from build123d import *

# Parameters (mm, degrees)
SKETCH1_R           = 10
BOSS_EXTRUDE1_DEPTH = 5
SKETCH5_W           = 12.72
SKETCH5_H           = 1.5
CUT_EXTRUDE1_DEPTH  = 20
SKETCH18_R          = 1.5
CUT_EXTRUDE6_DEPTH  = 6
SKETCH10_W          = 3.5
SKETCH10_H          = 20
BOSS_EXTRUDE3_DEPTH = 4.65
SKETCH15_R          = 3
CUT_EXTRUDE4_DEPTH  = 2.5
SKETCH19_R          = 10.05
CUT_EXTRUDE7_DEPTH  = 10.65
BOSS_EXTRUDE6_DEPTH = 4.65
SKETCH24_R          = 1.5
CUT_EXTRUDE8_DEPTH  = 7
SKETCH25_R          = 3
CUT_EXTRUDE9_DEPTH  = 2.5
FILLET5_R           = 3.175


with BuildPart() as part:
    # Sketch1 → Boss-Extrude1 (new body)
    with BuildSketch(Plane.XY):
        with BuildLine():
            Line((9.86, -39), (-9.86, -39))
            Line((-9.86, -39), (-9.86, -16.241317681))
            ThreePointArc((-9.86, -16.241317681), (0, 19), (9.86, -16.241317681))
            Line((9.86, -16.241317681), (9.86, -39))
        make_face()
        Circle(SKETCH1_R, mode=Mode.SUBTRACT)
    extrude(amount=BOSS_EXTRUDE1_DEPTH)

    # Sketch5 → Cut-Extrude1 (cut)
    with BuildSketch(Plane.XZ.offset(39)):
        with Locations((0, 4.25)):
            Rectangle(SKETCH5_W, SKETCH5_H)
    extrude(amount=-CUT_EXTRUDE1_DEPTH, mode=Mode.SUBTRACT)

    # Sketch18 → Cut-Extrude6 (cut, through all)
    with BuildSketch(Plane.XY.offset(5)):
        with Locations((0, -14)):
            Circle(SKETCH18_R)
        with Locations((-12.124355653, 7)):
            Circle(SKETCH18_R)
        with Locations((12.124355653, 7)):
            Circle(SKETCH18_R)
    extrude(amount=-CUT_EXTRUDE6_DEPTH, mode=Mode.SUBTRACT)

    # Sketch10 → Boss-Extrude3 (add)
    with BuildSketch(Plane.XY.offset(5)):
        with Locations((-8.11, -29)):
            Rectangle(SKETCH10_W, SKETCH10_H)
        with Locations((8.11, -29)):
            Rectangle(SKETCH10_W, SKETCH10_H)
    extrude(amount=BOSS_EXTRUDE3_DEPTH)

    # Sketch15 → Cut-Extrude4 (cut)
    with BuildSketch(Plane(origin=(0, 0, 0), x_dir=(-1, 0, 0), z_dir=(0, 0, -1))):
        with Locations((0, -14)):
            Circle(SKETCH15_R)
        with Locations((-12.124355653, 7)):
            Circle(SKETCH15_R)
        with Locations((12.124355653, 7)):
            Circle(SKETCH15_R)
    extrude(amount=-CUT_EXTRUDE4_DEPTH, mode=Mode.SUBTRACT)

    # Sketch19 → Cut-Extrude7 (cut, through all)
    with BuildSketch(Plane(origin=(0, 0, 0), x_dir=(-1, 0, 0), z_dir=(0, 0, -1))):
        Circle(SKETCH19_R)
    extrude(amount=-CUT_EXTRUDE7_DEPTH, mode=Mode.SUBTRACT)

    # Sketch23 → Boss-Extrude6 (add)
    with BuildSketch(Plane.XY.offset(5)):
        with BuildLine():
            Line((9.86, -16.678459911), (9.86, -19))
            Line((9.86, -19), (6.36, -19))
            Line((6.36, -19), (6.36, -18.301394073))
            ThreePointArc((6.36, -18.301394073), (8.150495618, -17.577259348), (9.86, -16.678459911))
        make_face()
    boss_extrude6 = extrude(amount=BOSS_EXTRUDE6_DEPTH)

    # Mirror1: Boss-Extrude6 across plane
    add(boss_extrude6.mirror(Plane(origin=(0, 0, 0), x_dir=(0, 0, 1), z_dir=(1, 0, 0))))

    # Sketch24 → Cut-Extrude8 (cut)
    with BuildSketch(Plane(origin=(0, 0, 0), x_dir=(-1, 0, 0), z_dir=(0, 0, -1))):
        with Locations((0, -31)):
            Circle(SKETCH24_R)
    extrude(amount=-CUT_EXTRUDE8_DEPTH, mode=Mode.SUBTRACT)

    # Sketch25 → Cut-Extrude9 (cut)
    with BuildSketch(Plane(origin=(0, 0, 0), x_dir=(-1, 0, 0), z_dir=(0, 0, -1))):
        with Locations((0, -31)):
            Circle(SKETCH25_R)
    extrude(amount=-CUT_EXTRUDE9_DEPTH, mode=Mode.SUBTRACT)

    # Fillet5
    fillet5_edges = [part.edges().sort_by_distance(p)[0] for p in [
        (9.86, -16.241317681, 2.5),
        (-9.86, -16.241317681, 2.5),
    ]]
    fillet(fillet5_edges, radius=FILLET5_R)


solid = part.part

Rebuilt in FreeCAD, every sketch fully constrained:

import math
import FreeCAD as App
import Part
import Sketcher

V = App.Vector


def edges_at(feature, points):
    """Names of the edges that pass closest to the given points."""
    edges = feature.Shape.Edges
    near = lambda p: min(range(len(edges)), key=lambda i: edges[i].distToShape(Part.Vertex(*p))[0])
    return sorted({f"Edge{near(p) + 1}" for p in points})

doc = App.newDocument("Part")
body = doc.addObject("PartDesign::Body", "Body")

sketch1 = body.newObject("Sketcher::SketchObject", "Sketch")
sketch1.AttachmentSupport = (doc.getObject("XY_Plane"), [""])
sketch1.MapMode = "FlatFace"
sketch1.addGeometry([
    Part.LineSegment(V(-9.86, -39, 0), V(9.86, -39, 0)),
    Part.LineSegment(V(9.86, -39, 0), V(9.86, -16.241318, 0)),
    Part.ArcOfCircle(Part.Circle(V(0, 0, 0), V(0, 0, 1), 19), math.radians(-58.73833), math.radians(238.73833)),
    Part.LineSegment(V(-9.86, -16.241318, 0), V(-9.86, -39, 0)),
    Part.Circle(V(0, 0, 0), V(0, 0, 1), 10),
], False)
sketch1.addConstraint([
    Sketcher.Constraint("Coincident", 0, 2, 1, 1),
    Sketcher.Constraint("Coincident", 1, 2, 2, 1),
    Sketcher.Constraint("Coincident", 2, 2, 3, 1),
    Sketcher.Constraint("Coincident", 3, 2, 0, 1),
    Sketcher.Constraint("Horizontal", 0),
    Sketcher.Constraint("Vertical", 1),
    Sketcher.Constraint("Vertical", 3),
    Sketcher.Constraint("Coincident", 2, 3, -1, 1),
    Sketcher.Constraint("Coincident", 4, 3, -1, 1),
    Sketcher.Constraint("Horizontal", 1, 2, 2, 2),
    Sketcher.Constraint("Diameter", 4, 20.0),
    Sketcher.Constraint("Radius", 2, 19.0),
    Sketcher.Constraint("DistanceY", 0, 2, -1, 1, 39.0),
    Sketcher.Constraint("DistanceX", 0, 1, 0, 2, 19.72),
])
pad1 = body.newObject("PartDesign::Pad", "Pad")
pad1.Profile = sketch1
pad1.Length = 5

sketch2 = body.newObject("Sketcher::SketchObject", "Sketch001")
sketch2.AttachmentSupport = (doc.getObject("XZ_Plane"), [""])
sketch2.MapMode = "FlatFace"
sketch2.AttachmentOffset = App.Placement(V(0, 0, 39), App.Rotation())
sketch2.addGeometry([
    Part.LineSegment(V(-6.36, 5, 0), V(-6.36, 3.5, 0)),
    Part.LineSegment(V(-6.36, 3.5, 0), V(6.36, 3.5, 0)),
    Part.LineSegment(V(6.36, 3.5, 0), V(6.36, 5, 0)),
    Part.LineSegment(V(6.36, 5, 0), V(-6.36, 5, 0)),
], False)
sketch2.addConstraint([
    Sketcher.Constraint("Coincident", 0, 2, 1, 1),
    Sketcher.Constraint("Coincident", 1, 2, 2, 1),
    Sketcher.Constraint("Coincident", 2, 2, 3, 1),
    Sketcher.Constraint("Coincident", 3, 2, 0, 1),
    Sketcher.Constraint("Vertical", 0),
    Sketcher.Constraint("Horizontal", 1),
    Sketcher.Constraint("Vertical", 2),
    Sketcher.Constraint("Horizontal", 3),
    Sketcher.Constraint("DistanceY", 0, 2, 0, 1, 1.5),
    Sketcher.Constraint("DistanceY", -1, 1, 2, 2, 5.0),
    Sketcher.Constraint("DistanceX", 1, 1, 1, 2, 12.72),
    Sketcher.Constraint("DistanceX", 0, 2, -1, 1, 6.36),
])
pocket1 = body.newObject("PartDesign::Pocket", "Pocket")
pocket1.Profile = sketch2
pocket1.Length = 20

sketch3 = body.newObject("Sketcher::SketchObject", "Sketch002")
sketch3.AttachmentSupport = (doc.getObject("XY_Plane"), [""])
sketch3.MapMode = "FlatFace"
sketch3.AttachmentOffset = App.Placement(V(0, 0, 5), App.Rotation())
sketch3.addGeometry([
    Part.Circle(V(0, -14, 0), V(0, 0, 1), 1.5),
    Part.Circle(V(-12.124356, 7, 0), V(0, 0, 1), 1.5),
    Part.Circle(V(12.124356, 7, 0), V(0, 0, 1), 1.5),
], False)
sketch3.addConstraint([
    Sketcher.Constraint("Equal", 0, 1),
    Sketcher.Constraint("Equal", 1, 2),
    Sketcher.Constraint("Symmetric", 1, 3, 2, 3, -2),
    Sketcher.Constraint("PointOnObject", 0, 3, -2),
    Sketcher.Constraint("Diameter", 0, 3.0),
    Sketcher.Constraint("DistanceY", 0, 3, -1, 1, 14.0),
    Sketcher.Constraint("DistanceY", -1, 1, 1, 3, 7.0),
    Sketcher.Constraint("DistanceX", 1, 3, 2, 3, 24.248711),
])
pocket2 = body.newObject("PartDesign::Pocket", "Pocket001")
pocket2.Profile = sketch3
pocket2.Type = "ThroughAll"

sketch4 = body.newObject("Sketcher::SketchObject", "Sketch003")
sketch4.AttachmentSupport = (doc.getObject("XY_Plane"), [""])
sketch4.MapMode = "FlatFace"
sketch4.AttachmentOffset = App.Placement(V(0, 0, 5), App.Rotation())
sketch4.addGeometry([
    Part.LineSegment(V(-9.86, -19, 0), V(-9.86, -39, 0)),
    Part.LineSegment(V(-9.86, -39, 0), V(-6.36, -39, 0)),
    Part.LineSegment(V(-6.36, -39, 0), V(-6.36, -19, 0)),
    Part.LineSegment(V(-6.36, -19, 0), V(-9.86, -19, 0)),
    Part.LineSegment(V(6.36, -19, 0), V(6.36, -39, 0)),
    Part.LineSegment(V(6.36, -39, 0), V(9.86, -39, 0)),
    Part.LineSegment(V(9.86, -39, 0), V(9.86, -19, 0)),
    Part.LineSegment(V(9.86, -19, 0), V(6.36, -19, 0)),
], False)
sketch4.addConstraint([
    Sketcher.Constraint("Coincident", 0, 2, 1, 1),
    Sketcher.Constraint("Coincident", 1, 2, 2, 1),
    Sketcher.Constraint("Coincident", 2, 2, 3, 1),
    Sketcher.Constraint("Coincident", 3, 2, 0, 1),
    Sketcher.Constraint("Coincident", 4, 2, 5, 1),
    Sketcher.Constraint("Coincident", 5, 2, 6, 1),
    Sketcher.Constraint("Coincident", 6, 2, 7, 1),
    Sketcher.Constraint("Coincident", 7, 2, 4, 1),
    Sketcher.Constraint("Vertical", 0),
    Sketcher.Constraint("Horizontal", 1),
    Sketcher.Constraint("Vertical", 2),
    Sketcher.Constraint("Horizontal", 3),
    Sketcher.Constraint("Vertical", 4),
    Sketcher.Constraint("Horizontal", 5),
    Sketcher.Constraint("Vertical", 6),
    Sketcher.Constraint("Horizontal", 7),
    Sketcher.Constraint("Symmetric", 1, 2, 4, 2, -2),
    Sketcher.Constraint("Symmetric", 3, 2, 6, 2, -2),
    Sketcher.Constraint("DistanceY", 0, 2, 0, 1, 20.0),
    Sketcher.Constraint("DistanceX", 1, 1, 1, 2, 3.5),
    Sketcher.Constraint("DistanceY", 0, 2, -1, 1, 39.0),
    Sketcher.Constraint("DistanceX", 0, 2, -1, 1, 9.86),
])
pad2 = body.newObject("PartDesign::Pad", "Pad001")
pad2.Profile = sketch4
pad2.Length = 4.65

sketch5 = body.newObject("Sketcher::SketchObject", "Sketch004")
sketch5.AttachmentSupport = (doc.getObject("XY_Plane"), [""])
sketch5.MapMode = "FlatFace"
sketch5.addGeometry([
    Part.Circle(V(0, -14, 0), V(0, 0, 1), 3),
    Part.Circle(V(12.124356, 7, 0), V(0, 0, 1), 3),
    Part.Circle(V(-12.124356, 7, 0), V(0, 0, 1), 3),
], False)
sketch5.addConstraint([
    Sketcher.Constraint("Equal", 0, 1),
    Sketcher.Constraint("Equal", 1, 2),
    Sketcher.Constraint("Symmetric", 1, 3, 2, 3, -2),
    Sketcher.Constraint("PointOnObject", 0, 3, -2),
    Sketcher.Constraint("Diameter", 0, 6.0),
    Sketcher.Constraint("DistanceY", 0, 3, -1, 1, 14.0),
    Sketcher.Constraint("DistanceY", -1, 1, 1, 3, 7.0),
    Sketcher.Constraint("DistanceX", 2, 3, 1, 3, 24.248711),
])
pocket3 = body.newObject("PartDesign::Pocket", "Pocket002")
pocket3.Profile = sketch5
pocket3.Length = 2.5
pocket3.Reversed = True

sketch6 = body.newObject("Sketcher::SketchObject", "Sketch005")
sketch6.AttachmentSupport = (doc.getObject("XY_Plane"), [""])
sketch6.MapMode = "FlatFace"
sketch6.addGeometry(Part.Circle(V(0, 0, 0), V(0, 0, 1), 10.05), False)
sketch6.addConstraint([
    Sketcher.Constraint("Coincident", 0, 3, -1, 1),
    Sketcher.Constraint("Diameter", 0, 20.1),
])
pocket4 = body.newObject("PartDesign::Pocket", "Pocket003")
pocket4.Profile = sketch6
pocket4.Type = "ThroughAll"
pocket4.Reversed = True

sketch7 = body.newObject("Sketcher::SketchObject", "Sketch006")
sketch7.AttachmentSupport = (doc.getObject("XY_Plane"), [""])
sketch7.MapMode = "FlatFace"
sketch7.AttachmentOffset = App.Placement(V(0, 0, 5), App.Rotation())
sketch7.addGeometry([
    Part.LineSegment(V(9.86, -19, 0), V(9.86, -16.67846, 0)),
    Part.ArcOfCircle(Part.Circle(V(0, 0, 0), V(0, 0, 1), 19.375), math.radians(-70.836919), math.radians(-59.409198)),
    Part.LineSegment(V(6.36, -18.301394, 0), V(6.36, -19, 0)),
    Part.LineSegment(V(6.36, -19, 0), V(9.86, -19, 0)),
], False)
sketch7.addConstraint([
    Sketcher.Constraint("Coincident", 0, 2, 1, 2),
    Sketcher.Constraint("Coincident", 1, 1, 2, 1),
    Sketcher.Constraint("Coincident", 2, 2, 3, 1),
    Sketcher.Constraint("Coincident", 3, 2, 0, 1),
    Sketcher.Constraint("Vertical", 0),
    Sketcher.Constraint("Vertical", 2),
    Sketcher.Constraint("Horizontal", 3),
    Sketcher.Constraint("Coincident", 1, 3, -1, 1),
    Sketcher.Constraint("DistanceX", 3, 1, 3, 2, 3.5),
    Sketcher.Constraint("DistanceY", 2, 2, -1, 1, 19.0),
    Sketcher.Constraint("Radius", 1, 19.375),
    Sketcher.Constraint("DistanceX", -1, 1, 0, 2, 9.86),
])
pad3 = body.newObject("PartDesign::Pad", "Pad002")
pad3.Profile = sketch7
pad3.Length = 4.65
doc.recompute()

mirrored = body.newObject("PartDesign::Mirrored", "Mirrored")
mirrored.Originals = [pad3]
mirrored.MirrorPlane = (doc.getObject("YZ_Plane"), [""])
body.Tip = mirrored

sketch8 = body.newObject("Sketcher::SketchObject", "Sketch007")
sketch8.AttachmentSupport = (doc.getObject("XY_Plane"), [""])
sketch8.MapMode = "FlatFace"
sketch8.addGeometry(Part.Circle(V(0, -31, 0), V(0, 0, 1), 1.5), False)
sketch8.addConstraint([
    Sketcher.Constraint("PointOnObject", 0, 3, -2),
    Sketcher.Constraint("Diameter", 0, 3.0),
    Sketcher.Constraint("DistanceY", 0, 3, -1, 1, 31.0),
])
pocket5 = body.newObject("PartDesign::Pocket", "Pocket004")
pocket5.Profile = sketch8
pocket5.Length = 7
pocket5.Reversed = True

sketch9 = body.newObject("Sketcher::SketchObject", "Sketch008")
sketch9.AttachmentSupport = (doc.getObject("XY_Plane"), [""])
sketch9.MapMode = "FlatFace"
sketch9.addGeometry(Part.Circle(V(0, -31, 0), V(0, 0, 1), 3), False)
sketch9.addConstraint([
    Sketcher.Constraint("PointOnObject", 0, 3, -2),
    Sketcher.Constraint("Diameter", 0, 6.0),
    Sketcher.Constraint("DistanceY", 0, 3, -1, 1, 31.0),
])
pocket6 = body.newObject("PartDesign::Pocket", "Pocket005")
pocket6.Profile = sketch9
pocket6.Length = 2.5
pocket6.Reversed = True
doc.recompute()

fillet = body.newObject("PartDesign::Fillet", "Fillet")
fillet.Base = (pocket6, edges_at(pocket6, [(9.86, -16.241, 2.5), (-9.86, -16.241, 2.5)]))
fillet.Radius = 3.175

doc.recompute()
